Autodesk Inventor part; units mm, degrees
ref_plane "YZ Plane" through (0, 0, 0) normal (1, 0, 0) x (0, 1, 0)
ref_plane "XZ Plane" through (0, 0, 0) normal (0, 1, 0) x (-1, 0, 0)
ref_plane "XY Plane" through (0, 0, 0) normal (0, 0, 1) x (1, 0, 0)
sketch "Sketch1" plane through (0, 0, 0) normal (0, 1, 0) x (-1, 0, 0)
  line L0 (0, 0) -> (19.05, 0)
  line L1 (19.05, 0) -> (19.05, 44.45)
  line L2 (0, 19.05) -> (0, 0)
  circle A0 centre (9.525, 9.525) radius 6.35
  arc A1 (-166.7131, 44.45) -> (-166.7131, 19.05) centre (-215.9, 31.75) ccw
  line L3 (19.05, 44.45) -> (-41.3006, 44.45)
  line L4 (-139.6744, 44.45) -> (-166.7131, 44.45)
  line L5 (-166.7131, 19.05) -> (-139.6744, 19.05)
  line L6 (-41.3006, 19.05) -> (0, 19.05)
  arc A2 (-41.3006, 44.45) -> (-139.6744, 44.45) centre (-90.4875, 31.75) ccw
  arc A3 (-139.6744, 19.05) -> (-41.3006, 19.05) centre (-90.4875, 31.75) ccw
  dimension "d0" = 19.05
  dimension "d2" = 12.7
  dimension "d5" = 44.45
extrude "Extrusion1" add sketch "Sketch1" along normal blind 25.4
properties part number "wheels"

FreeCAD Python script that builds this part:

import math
import FreeCAD as App
import Part
import Sketcher

V = App.Vector
Q = App.Units.Quantity

doc = App.newDocument("Part")
body = doc.addObject("PartDesign::Body", "Body")

sketch1 = doc.addObject("Sketcher::SketchObject", "Sketch")
body.addObject(sketch1)
sketch1.AttachmentSupport = (doc.XZ_Plane, [""])
sketch1.MapMode = "FlatFace"
sketch1.addGeometry([
    Part.LineSegment(V(0, 19.05, 0), V(0, 0, 0)),
    Part.LineSegment(V(0, 0, 0), V(-19.05, 0, 0)),
    Part.LineSegment(V(-19.05, 0, 0), V(-19.05, 44.45, 0)),
    Part.LineSegment(V(-19.05, 44.45, 0), V(41.3006, 44.45, 0)),
    Part.ArcOfCircle(Part.Circle(V(90.4875, 31.75, 0), V(0, 0, 1), 50.800011), math.radians(14.477509), math.radians(165.522491)),
    Part.LineSegment(V(139.6744, 44.45, 0), V(166.7131, 44.45, 0)),
    Part.ArcOfCircle(Part.Circle(V(215.9, 31.75, 0), V(0, 0, 1), 50.800011), math.radians(-165.522491), math.radians(165.522491)),
    Part.LineSegment(V(166.7131, 19.05, 0), V(139.6744, 19.05, 0)),
    Part.ArcOfCircle(Part.Circle(V(90.4875, 31.75, 0), V(0, 0, 1), 50.800011), math.radians(-165.522491), math.radians(-14.477509)),
    Part.LineSegment(V(41.3006, 19.05, 0), V(0, 19.05, 0)),
    Part.Circle(V(-9.525, 9.525, 0), V(0, 0, 1), 6.35),
], False)
sketch1.addConstraint([
    Sketcher.Constraint("Coincident", 0, 2, 1, 1),
    Sketcher.Constraint("Coincident", 1, 2, 2, 1),
    Sketcher.Constraint("Coincident", 2, 2, 3, 1),
    Sketcher.Constraint("Coincident", 3, 2, 4, 2),
    Sketcher.Constraint("Coincident", 4, 1, 5, 1),
    Sketcher.Constraint("Coincident", 5, 2, 6, 2),
    Sketcher.Constraint("Coincident", 6, 1, 7, 1),
    Sketcher.Constraint("Coincident", 7, 2, 8, 2),
    Sketcher.Constraint("Coincident", 8, 1, 9, 1),
    Sketcher.Constraint("Coincident", 9, 2, 0, 1),
    Sketcher.Constraint("Vertical", 0),
    Sketcher.Constraint("Horizontal", 1),
    Sketcher.Constraint("Vertical", 2),
    Sketcher.Constraint("Horizontal", 3),
    Sketcher.Constraint("Horizontal", 5),
    Sketcher.Constraint("Horizontal", 7),
    Sketcher.Constraint("Horizontal", 9),
    Sketcher.Constraint("Coincident", 0, 2, -1, 1),
    Sketcher.Constraint("Coincident", 8, 3, 4, 3),
    Sketcher.Constraint("Equal", 4, 6),
    Sketcher.Constraint("Equal", 6, 8),
    Sketcher.Constraint("Horizontal", 4, 3, 6, 3),
    Sketcher.Constraint("Horizontal", 3, 2, 4, 1),
    Sketcher.Constraint("Horizontal", 7, 2, 8, 1),
    Sketcher.Constraint("Vertical", 5, 2, 6, 1),
    Sketcher.Constraint("Equal", 1, 0),
    Sketcher.Constraint("Diameter", 10, Q("0.5 in")),
    Sketcher.Constraint("Radius", 4, Q("2 in")),
    Sketcher.Constraint("DistanceX", 1, 2, 1, 1, Q("0.75 in")),
    Sketcher.Constraint("DistanceY", 2, 1, 2, 2, Q("1.75 in")),
    Sketcher.Constraint("DistanceX", -1, 1, 6, 3, Q("8.5 in")),
    Sketcher.Constraint("DistanceX", 3, 1, 3, 2, Q("2.376 in")),
    Sketcher.Constraint("DistanceX", 10, 3, -1, 1, Q("0.375 in")),
    Sketcher.Constraint("DistanceY", -1, 1, 10, 3, Q("0.375 in")),
])
pad1 = doc.addObject("PartDesign::Pad", "Pad")
body.addObject(pad1)
pad1.Profile = sketch1
pad1.Length = Q("1 in")
pad1.Reversed = True

doc.recompute()
